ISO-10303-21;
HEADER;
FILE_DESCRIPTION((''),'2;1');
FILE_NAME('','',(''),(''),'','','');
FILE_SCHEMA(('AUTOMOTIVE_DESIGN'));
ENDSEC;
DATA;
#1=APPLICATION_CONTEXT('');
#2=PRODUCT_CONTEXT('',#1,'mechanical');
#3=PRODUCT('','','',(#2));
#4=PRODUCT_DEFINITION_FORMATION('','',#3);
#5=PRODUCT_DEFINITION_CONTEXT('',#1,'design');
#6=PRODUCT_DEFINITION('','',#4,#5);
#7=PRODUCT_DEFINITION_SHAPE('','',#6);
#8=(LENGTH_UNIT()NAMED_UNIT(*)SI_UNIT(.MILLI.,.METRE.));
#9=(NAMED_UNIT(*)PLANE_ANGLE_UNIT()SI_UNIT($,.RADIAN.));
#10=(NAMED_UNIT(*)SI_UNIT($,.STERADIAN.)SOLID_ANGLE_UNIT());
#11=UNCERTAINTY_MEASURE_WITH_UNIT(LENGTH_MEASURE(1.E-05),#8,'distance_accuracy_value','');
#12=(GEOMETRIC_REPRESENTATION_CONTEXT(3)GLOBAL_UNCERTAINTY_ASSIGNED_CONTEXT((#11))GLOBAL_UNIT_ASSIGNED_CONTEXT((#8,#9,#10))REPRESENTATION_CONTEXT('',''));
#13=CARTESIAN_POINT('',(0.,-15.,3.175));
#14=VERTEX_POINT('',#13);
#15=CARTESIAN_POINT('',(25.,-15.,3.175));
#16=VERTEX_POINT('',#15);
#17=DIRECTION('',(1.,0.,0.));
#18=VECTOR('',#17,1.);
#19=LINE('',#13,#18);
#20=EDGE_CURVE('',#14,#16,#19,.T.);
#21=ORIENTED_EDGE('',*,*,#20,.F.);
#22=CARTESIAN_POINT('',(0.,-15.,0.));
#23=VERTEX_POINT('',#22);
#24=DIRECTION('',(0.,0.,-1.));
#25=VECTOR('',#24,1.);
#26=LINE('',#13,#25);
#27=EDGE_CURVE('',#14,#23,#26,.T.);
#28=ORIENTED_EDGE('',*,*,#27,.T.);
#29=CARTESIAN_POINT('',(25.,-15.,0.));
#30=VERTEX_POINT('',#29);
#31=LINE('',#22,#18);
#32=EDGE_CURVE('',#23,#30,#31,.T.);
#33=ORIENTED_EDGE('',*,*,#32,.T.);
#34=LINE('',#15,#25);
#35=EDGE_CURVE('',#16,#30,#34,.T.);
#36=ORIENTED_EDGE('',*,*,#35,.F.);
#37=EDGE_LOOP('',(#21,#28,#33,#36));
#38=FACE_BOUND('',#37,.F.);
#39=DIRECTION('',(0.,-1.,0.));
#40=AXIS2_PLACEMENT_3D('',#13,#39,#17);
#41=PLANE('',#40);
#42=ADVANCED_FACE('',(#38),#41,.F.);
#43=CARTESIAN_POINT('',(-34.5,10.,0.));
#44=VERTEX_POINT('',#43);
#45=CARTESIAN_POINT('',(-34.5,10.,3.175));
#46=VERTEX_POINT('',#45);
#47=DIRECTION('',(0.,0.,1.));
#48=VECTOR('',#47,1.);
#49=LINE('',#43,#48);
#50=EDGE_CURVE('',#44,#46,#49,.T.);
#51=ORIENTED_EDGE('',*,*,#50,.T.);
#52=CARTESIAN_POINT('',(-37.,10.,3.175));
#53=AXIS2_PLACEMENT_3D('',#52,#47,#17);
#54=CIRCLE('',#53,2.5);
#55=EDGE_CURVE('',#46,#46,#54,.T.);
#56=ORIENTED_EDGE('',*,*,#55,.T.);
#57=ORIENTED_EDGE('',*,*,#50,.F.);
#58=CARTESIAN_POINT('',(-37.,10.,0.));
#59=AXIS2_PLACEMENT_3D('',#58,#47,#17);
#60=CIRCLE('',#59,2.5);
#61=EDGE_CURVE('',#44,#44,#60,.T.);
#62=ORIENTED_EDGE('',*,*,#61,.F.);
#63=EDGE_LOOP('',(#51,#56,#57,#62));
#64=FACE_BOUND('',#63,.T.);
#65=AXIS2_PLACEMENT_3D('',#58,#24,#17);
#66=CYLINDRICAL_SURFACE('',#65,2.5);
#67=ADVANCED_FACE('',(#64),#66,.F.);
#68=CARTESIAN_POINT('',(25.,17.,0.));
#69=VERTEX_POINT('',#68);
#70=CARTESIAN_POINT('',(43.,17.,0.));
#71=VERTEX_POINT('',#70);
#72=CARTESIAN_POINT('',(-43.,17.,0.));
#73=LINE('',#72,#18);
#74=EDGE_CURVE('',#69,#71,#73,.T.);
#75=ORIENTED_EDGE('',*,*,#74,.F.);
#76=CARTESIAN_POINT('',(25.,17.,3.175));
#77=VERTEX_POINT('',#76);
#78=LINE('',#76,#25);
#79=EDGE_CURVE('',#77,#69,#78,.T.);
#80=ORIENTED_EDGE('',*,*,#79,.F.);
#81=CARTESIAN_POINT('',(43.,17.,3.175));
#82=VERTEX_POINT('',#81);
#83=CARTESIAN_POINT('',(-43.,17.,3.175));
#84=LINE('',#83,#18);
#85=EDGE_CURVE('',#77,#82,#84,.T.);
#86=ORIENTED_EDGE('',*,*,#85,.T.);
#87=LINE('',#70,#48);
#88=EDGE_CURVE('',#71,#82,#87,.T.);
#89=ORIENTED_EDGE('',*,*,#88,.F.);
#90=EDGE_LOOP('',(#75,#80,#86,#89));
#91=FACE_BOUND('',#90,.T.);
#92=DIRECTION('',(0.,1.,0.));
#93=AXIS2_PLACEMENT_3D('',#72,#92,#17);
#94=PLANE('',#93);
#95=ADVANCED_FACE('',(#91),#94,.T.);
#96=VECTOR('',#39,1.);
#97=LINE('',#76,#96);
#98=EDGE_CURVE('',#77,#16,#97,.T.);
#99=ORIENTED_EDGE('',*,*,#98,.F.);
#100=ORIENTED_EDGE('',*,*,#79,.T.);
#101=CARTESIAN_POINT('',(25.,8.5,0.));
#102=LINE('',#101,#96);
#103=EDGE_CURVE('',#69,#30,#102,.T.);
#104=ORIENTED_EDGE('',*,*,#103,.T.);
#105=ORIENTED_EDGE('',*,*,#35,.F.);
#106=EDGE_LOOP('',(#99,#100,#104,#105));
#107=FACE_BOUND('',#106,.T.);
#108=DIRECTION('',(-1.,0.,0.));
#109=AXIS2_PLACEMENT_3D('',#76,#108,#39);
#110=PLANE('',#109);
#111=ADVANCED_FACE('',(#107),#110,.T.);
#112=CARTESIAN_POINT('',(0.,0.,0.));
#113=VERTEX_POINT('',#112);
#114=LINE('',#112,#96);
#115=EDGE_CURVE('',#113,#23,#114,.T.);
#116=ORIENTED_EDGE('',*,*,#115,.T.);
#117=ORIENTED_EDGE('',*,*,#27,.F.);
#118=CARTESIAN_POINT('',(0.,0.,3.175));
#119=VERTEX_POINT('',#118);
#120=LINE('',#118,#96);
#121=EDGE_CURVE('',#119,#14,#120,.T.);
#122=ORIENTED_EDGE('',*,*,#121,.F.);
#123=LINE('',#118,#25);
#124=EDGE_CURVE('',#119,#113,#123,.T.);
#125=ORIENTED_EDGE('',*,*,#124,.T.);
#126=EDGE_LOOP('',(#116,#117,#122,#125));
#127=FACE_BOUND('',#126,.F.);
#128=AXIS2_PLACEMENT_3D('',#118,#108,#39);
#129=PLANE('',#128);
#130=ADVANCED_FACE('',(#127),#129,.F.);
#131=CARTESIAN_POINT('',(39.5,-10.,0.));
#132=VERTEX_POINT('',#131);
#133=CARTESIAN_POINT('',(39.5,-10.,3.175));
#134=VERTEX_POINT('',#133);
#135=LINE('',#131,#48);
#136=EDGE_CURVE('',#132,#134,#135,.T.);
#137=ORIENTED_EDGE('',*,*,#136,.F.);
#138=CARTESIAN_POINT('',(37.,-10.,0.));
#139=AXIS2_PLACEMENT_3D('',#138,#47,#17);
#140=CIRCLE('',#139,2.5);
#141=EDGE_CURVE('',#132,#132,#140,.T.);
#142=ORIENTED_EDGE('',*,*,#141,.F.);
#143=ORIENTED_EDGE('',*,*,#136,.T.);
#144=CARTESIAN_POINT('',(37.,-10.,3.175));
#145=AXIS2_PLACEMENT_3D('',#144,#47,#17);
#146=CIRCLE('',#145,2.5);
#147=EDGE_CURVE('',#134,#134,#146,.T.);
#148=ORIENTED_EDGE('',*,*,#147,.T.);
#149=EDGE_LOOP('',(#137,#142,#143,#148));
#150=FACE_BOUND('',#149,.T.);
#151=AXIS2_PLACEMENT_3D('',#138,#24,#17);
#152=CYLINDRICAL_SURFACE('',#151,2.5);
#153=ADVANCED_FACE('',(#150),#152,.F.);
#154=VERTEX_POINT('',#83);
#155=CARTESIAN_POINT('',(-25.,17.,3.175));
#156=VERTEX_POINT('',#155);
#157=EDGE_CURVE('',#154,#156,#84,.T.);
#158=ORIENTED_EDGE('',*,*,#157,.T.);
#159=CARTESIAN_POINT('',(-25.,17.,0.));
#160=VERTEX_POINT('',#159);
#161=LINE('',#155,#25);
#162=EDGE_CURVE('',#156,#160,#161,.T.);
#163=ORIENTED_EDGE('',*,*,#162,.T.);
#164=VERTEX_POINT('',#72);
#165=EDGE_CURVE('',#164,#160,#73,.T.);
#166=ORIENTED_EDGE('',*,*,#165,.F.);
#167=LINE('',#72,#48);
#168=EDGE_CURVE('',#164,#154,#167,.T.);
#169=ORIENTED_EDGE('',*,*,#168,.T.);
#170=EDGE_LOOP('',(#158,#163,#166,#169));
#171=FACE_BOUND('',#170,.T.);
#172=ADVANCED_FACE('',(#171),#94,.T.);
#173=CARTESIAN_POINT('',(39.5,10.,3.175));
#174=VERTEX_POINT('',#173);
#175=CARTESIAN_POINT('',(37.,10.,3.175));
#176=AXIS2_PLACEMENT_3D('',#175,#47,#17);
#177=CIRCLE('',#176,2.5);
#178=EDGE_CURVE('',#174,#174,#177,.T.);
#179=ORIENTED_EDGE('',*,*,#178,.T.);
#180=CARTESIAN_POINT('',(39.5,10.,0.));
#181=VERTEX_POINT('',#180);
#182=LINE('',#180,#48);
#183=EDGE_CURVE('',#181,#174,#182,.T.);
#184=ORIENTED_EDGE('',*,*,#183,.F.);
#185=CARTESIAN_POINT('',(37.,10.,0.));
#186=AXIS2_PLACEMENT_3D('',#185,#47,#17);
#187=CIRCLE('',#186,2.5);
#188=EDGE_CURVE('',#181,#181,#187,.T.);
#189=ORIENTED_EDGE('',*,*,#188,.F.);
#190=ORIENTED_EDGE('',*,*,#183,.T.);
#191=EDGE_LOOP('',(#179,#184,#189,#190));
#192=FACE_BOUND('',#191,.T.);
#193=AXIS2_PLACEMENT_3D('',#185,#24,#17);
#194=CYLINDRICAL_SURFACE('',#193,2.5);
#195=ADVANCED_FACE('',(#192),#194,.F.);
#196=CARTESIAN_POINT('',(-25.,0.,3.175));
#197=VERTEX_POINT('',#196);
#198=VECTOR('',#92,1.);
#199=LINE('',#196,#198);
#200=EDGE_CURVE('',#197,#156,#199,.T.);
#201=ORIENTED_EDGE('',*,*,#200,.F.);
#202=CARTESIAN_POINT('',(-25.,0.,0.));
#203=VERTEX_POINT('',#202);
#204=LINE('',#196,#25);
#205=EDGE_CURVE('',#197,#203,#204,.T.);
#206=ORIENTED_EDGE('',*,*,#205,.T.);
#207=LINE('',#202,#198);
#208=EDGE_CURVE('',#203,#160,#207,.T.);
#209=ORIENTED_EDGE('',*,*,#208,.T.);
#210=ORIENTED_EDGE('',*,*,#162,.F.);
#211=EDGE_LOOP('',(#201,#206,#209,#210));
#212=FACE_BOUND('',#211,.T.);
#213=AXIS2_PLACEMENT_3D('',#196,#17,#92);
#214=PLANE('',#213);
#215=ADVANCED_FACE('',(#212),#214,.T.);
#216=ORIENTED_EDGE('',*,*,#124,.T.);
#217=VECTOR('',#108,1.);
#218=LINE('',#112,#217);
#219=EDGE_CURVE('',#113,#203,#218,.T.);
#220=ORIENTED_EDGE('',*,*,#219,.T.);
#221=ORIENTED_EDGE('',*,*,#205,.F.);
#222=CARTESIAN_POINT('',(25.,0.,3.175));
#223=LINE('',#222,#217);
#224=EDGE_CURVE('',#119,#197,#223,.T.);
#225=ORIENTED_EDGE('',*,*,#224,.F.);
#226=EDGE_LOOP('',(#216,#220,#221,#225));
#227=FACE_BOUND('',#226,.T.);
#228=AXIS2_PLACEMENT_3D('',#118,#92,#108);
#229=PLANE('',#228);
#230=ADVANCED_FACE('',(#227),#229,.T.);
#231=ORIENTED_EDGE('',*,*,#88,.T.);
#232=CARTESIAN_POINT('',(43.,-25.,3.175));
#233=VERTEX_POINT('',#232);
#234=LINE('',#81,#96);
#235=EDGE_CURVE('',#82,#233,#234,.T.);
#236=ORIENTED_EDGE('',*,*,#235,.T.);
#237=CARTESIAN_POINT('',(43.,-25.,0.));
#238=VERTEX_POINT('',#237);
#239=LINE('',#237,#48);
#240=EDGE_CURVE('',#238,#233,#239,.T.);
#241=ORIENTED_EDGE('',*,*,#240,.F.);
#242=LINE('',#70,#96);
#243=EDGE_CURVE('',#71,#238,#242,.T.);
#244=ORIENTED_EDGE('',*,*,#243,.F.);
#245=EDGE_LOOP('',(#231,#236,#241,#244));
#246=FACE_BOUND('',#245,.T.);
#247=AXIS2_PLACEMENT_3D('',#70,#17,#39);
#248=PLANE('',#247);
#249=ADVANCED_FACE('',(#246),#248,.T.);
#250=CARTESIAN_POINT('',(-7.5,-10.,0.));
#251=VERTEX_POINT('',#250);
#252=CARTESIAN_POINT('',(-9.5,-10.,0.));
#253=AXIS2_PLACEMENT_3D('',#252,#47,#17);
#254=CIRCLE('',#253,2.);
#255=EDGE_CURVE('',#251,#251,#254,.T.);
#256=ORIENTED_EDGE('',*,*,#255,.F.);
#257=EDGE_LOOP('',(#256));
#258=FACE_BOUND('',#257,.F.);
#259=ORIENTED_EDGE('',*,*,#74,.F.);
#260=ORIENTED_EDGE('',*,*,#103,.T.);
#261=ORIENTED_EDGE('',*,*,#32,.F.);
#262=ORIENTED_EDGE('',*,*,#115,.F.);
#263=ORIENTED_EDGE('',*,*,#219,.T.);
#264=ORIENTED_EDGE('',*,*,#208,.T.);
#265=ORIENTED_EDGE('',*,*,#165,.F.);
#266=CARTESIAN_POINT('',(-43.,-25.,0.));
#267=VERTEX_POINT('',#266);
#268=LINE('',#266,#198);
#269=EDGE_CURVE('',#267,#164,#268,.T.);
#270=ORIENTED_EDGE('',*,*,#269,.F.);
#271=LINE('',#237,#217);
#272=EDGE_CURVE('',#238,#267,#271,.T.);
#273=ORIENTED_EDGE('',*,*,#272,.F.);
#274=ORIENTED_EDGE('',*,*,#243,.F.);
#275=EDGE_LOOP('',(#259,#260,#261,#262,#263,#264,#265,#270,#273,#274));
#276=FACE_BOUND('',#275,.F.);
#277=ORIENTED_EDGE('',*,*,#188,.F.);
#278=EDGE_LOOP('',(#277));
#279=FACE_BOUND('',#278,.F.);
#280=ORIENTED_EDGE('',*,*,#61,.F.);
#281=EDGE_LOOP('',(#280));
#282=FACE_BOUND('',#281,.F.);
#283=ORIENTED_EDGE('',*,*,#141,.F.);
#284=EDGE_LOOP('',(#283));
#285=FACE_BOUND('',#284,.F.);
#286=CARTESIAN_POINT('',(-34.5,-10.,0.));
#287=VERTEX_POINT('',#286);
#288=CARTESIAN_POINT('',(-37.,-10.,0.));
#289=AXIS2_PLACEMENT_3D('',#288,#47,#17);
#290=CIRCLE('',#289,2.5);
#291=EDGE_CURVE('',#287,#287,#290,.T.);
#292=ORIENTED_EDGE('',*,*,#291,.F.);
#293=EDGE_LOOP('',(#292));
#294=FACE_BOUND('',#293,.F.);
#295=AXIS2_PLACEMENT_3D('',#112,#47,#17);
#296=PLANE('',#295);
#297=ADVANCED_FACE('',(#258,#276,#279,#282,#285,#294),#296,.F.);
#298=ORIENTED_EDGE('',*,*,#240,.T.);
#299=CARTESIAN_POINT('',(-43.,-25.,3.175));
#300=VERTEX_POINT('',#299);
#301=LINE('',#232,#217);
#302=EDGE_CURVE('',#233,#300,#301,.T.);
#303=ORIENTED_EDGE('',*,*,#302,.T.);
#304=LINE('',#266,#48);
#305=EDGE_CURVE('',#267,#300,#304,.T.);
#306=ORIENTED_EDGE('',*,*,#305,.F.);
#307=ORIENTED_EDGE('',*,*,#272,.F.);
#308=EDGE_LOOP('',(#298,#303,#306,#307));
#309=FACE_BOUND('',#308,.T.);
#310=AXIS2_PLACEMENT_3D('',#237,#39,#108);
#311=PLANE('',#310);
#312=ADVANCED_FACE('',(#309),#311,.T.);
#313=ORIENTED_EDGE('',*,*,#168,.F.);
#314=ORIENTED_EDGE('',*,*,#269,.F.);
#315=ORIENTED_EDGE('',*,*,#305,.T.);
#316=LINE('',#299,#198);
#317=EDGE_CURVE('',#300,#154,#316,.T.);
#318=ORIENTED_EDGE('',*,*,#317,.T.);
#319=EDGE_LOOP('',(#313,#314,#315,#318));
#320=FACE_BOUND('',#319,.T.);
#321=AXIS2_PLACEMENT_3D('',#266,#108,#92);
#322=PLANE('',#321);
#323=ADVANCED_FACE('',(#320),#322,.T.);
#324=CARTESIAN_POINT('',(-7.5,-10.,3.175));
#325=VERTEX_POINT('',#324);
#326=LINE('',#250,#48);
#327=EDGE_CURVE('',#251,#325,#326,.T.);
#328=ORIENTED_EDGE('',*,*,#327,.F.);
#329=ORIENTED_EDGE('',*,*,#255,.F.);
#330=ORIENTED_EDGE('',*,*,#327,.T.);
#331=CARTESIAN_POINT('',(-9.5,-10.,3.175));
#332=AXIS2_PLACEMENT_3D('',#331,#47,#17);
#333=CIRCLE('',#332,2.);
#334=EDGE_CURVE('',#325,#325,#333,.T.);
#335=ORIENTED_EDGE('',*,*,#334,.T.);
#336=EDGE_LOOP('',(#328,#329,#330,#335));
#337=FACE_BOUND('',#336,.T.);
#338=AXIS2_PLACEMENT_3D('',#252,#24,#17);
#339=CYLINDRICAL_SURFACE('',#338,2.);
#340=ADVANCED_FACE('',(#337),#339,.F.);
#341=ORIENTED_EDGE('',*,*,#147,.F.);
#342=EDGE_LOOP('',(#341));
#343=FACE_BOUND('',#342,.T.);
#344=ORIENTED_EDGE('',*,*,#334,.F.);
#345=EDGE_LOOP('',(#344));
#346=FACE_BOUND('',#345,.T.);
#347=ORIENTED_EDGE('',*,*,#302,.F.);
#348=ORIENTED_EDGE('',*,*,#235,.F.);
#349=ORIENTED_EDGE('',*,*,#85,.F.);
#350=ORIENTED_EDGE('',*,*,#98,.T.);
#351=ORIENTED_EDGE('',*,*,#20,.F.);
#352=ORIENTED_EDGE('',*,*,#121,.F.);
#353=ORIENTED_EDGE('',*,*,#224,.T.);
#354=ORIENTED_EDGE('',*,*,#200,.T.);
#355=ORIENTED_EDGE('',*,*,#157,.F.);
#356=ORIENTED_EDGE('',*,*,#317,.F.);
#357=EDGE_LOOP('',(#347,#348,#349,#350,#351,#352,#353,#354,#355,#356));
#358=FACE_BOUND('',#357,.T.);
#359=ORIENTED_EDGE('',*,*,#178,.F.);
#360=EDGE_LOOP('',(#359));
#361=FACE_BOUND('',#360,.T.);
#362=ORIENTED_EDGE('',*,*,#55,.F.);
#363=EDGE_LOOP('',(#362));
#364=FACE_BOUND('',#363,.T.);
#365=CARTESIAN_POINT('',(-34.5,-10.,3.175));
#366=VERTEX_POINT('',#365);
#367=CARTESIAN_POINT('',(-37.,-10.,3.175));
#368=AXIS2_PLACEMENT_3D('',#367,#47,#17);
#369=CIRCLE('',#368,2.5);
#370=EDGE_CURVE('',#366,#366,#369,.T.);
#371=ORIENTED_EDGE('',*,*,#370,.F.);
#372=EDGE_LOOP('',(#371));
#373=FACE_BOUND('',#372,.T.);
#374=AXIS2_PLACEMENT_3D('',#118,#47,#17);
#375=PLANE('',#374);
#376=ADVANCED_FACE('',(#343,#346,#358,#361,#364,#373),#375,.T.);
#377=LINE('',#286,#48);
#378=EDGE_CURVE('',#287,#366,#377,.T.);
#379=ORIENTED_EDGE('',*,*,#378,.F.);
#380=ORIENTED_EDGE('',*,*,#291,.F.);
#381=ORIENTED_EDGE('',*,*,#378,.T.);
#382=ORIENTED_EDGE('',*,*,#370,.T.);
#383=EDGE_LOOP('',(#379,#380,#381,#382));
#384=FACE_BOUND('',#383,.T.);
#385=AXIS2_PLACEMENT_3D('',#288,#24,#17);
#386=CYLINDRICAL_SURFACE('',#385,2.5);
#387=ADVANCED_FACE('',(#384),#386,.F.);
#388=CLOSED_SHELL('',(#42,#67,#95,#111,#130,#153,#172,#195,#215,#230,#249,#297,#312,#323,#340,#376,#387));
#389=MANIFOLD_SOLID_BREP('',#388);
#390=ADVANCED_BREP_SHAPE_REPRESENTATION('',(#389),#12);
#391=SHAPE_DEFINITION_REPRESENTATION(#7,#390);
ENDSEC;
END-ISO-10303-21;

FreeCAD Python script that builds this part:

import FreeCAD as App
import Part
import Sketcher


def add_polygon(sketch, points):
    """Adds a closed chain of lines whose ends are joined by coincident constraints."""
    first, n = sketch.GeometryCount, len(points)
    for a, b in zip(points, points[1:] + points[:1]):
        sketch.addGeometry(Part.LineSegment(App.Vector(*a, 0), App.Vector(*b, 0)), False)
    for i in range(n):
        sketch.addConstraint(Sketcher.Constraint("Coincident", first + i, 2, first + (i + 1) % n, 1))

doc = App.newDocument("Part")
body = doc.addObject("PartDesign::Body", "Body")

# Sketch on XY plane
sketch1 = body.newObject("Sketcher::SketchObject", "Sketch")
sketch1.AttachmentSupport = (doc.getObject("XY_Plane"), [""])
sketch1.MapMode = "FlatFace"
add_polygon(sketch1, [(43, 17), (-43, 17), (-43, -25), (43, -25)])  # lines 0-3
sketch1.addGeometry(Part.Circle(App.Vector(-37, -10, 0), App.Vector(0, 0, 1), 2.5), False)  # 4
sketch1.addGeometry(Part.Circle(App.Vector(-9.5, -10, 0), App.Vector(0, 0, 1), 2), False)  # 5
sketch1.addGeometry(Part.Circle(App.Vector(37, -10, 0), App.Vector(0, 0, 1), 2.5), False)  # 6
sketch1.addGeometry(Part.Circle(App.Vector(-37, 10, 0), App.Vector(0, 0, 1), 2.5), False)  # 7
sketch1.addGeometry(Part.Circle(App.Vector(37, 10, 0), App.Vector(0, 0, 1), 2.5), False)  # 8
sketch1.addConstraint([
    Sketcher.Constraint("Horizontal", 0),
    Sketcher.Constraint("Vertical", 1),
    Sketcher.Constraint("Horizontal", 2),
    Sketcher.Constraint("Vertical", 3),
    Sketcher.Constraint("Equal", 4, 6),
    Sketcher.Constraint("Equal", 6, 7),
    Sketcher.Constraint("Equal", 7, 8),
    Sketcher.Constraint("Symmetric", 6, 3, 7, 3, -1, 1),
    Sketcher.Constraint("Symmetric", 4, 3, 8, 3, -1, 1),
    Sketcher.Constraint("Symmetric", 4, 3, 6, 3, -2),
    Sketcher.Constraint("Horizontal", 4, 3, 5, 3),
    Sketcher.Constraint("Diameter", 4, 5.0),
    Sketcher.Constraint("Diameter", 5, 4.0),
    Sketcher.Constraint("DistanceX", 0, 2, 0, 1, 86.0),
    Sketcher.Constraint("DistanceY", 1, 2, 1, 1, 42.0),
    Sketcher.Constraint("DistanceX", 0, 2, 7, 3, 6.0),
    Sketcher.Constraint("DistanceY", 7, 3, 0, 2, 7.0),
    Sketcher.Constraint("DistanceY", 1, 2, 4, 3, 15.0),
    Sketcher.Constraint("DistanceX", 6, 3, 2, 2, 6.0),
    Sketcher.Constraint("DistanceX", 4, 3, 5, 3, 27.5),
])
pad1 = body.newObject("PartDesign::Pad", "Pad")
pad1.Profile = sketch1
pad1.Length = 3.175

# Sketch on XY plane
sketch2 = body.newObject("Sketcher::SketchObject", "Sketch001")
sketch2.AttachmentSupport = (doc.getObject("XY_Plane"), [""])
sketch2.MapMode = "FlatFace"
sketch2.AttachmentOffset = App.Placement(App.Vector(0, 0, 3.175), App.Rotation())
add_polygon(sketch2, [(25, 17), (-25, 17), (-25, 0), (0, 0), (0, -15), (25, -15)])  # lines 0-5
sketch2.addConstraint([
    Sketcher.Constraint("Horizontal", 0),
    Sketcher.Constraint("Vertical", 1),
    Sketcher.Constraint("Horizontal", 2),
    Sketcher.Constraint("Vertical", 3),
    Sketcher.Constraint("Horizontal", 4),
    Sketcher.Constraint("Vertical", 5),
    Sketcher.Constraint("Coincident", 2, 2, -1, 1),
    Sketcher.Constraint("Equal", 2, 4),
    Sketcher.Constraint("DistanceX", 0, 2, 0, 1, 50.0),
    Sketcher.Constraint("DistanceY", 1, 2, 1, 1, 17.0),
    Sketcher.Constraint("DistanceY", 3, 2, 3, 1, 15.0),
])
pocket1 = body.newObject("PartDesign::Pocket", "Pocket")
pocket1.Profile = sketch2
pocket1.Type = "ThroughAll"

doc.recompute()
